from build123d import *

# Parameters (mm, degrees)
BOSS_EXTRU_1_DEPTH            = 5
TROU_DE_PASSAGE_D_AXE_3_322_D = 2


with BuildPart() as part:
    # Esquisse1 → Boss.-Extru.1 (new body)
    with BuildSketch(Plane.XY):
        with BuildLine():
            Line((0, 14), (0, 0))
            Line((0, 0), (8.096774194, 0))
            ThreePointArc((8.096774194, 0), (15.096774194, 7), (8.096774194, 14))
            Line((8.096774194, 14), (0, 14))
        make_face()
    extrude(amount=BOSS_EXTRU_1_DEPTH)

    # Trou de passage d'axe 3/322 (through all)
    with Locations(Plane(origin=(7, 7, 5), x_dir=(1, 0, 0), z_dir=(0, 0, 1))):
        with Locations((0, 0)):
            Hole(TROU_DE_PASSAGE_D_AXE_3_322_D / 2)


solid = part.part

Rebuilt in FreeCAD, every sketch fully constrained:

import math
import FreeCAD as App
import Part
import Sketcher
from FreeCAD import Vector

doc = App.newDocument("Part")
body = doc.addObject("PartDesign::Body", "Body")

# Sketch on XY plane
sketch1 = doc.addObject("Sketcher::SketchObject", "Sketch")
body.addObject(sketch1)
sketch1.AttachmentSupport = (doc.XY_Plane, [""])
sketch1.MapMode = "FlatFace"
sketch1.addGeometry(Part.LineSegment(Vector(0, 14, 0), Vector(0, 0, 0)), False)
sketch1.addGeometry(Part.LineSegment(Vector(0, 0, 0), Vector(8, 0, 0)), False)
sketch1.addGeometry(Part.ArcOfCircle(Part.Circle(Vector(8, 7, 0), Vector(0, 0, 1), 7), math.radians(-90), math.radians(90)), False)
sketch1.addGeometry(Part.LineSegment(Vector(8, 14, 0), Vector(0, 14, 0)), False)
sketch1.addConstraint(Sketcher.Constraint("Coincident", 0, 2, 1, 1))
sketch1.addConstraint(Sketcher.Constraint("Tangent", 1, 2, 2, 1))
sketch1.addConstraint(Sketcher.Constraint("Tangent", 2, 2, 3, 1))
sketch1.addConstraint(Sketcher.Constraint("Coincident", 3, 2, 0, 1))
sketch1.addConstraint(Sketcher.Constraint("Vertical", 0))
sketch1.addConstraint(Sketcher.Constraint("Horizontal", 1))
sketch1.addConstraint(Sketcher.Constraint("Horizontal", 3))
sketch1.addConstraint(Sketcher.Constraint("Coincident", 0, 2, -1, 1))
sketch1.addConstraint(Sketcher.Constraint("Radius", 2, 7.0))
sketch1.addConstraint(Sketcher.Constraint("DistanceX", 1, 1, 1, 2, 8.096774))
pad1 = doc.addObject("PartDesign::Pad", "Pad")
body.addObject(pad1)
pad1.Profile = sketch1
pad1.Length = 5

# Sketch on XY plane
sketch2 = doc.addObject("Sketcher::SketchObject", "Sketch001")
body.addObject(sketch2)
sketch2.AttachmentSupport = (doc.XY_Plane, [""])
sketch2.MapMode = "FlatFace"
sketch2.AttachmentOffset = App.Placement(Vector(0, 0, 5), App.Rotation())
sketch2.addGeometry(Part.Circle(Vector(7, 7, 0), Vector(0, 0, 1), 1), False)
sketch2.addConstraint(Sketcher.Constraint("Diameter", 0, 2.0))
sketch2.addConstraint(Sketcher.Constraint("DistanceX", -1, 1, 0, 3, 7.0))
sketch2.addConstraint(Sketcher.Constraint("DistanceY", -1, 1, 0, 3, 7.0))
doc.recompute()
hole = doc.addObject("PartDesign::Hole", "Hole")
body.addObject(hole)
hole.Profile = sketch2
hole.ThreadType = "None"
hole.Diameter = 2
hole.DepthType = "ThroughAll"

doc.recompute()
